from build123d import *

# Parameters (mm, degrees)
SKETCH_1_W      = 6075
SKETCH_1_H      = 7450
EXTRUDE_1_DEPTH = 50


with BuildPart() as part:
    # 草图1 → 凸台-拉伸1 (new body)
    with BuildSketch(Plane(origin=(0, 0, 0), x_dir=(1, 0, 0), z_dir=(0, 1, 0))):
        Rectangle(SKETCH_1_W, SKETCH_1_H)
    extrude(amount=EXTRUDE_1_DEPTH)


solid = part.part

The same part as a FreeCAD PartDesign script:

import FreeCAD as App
import Part
import Sketcher

V = App.Vector


def add_polygon(sketch, points):
    """Adds a closed chain of lines whose ends are joined by coincident constraints."""
    first, n = sketch.GeometryCount, len(points)
    for a, b in zip(points, points[1:] + points[:1]):
        sketch.addGeometry(Part.LineSegment(App.Vector(*a, 0), App.Vector(*b, 0)), False)
    for i in range(n):
        sketch.addConstraint(Sketcher.Constraint("Coincident", first + i, 2, first + (i + 1) % n, 1))

doc = App.newDocument("Part")
body = doc.addObject("PartDesign::Body", "Body")

sketch1 = body.newObject("Sketcher::SketchObject", "Sketch")
sketch1.AttachmentSupport = (doc.getObject("XZ_Plane"), [""])
sketch1.MapMode = "FlatFace"
add_polygon(sketch1, [(-3038, -3725), (-3038, 3725), (3038, 3725), (3038, -3725)])
sketch1.addConstraint([
    Sketcher.Constraint("Vertical", 0),
    Sketcher.Constraint("Horizontal", 1),
    Sketcher.Constraint("Vertical", 2),
    Sketcher.Constraint("Horizontal", 3),
    Sketcher.Constraint("Symmetric", 0, 2, 2, 2, -1, 1),
    Sketcher.Constraint("DistanceX", 1, 1, 1, 2, 6075.0),
    Sketcher.Constraint("DistanceY", 0, 1, 0, 2, 7450.0),
])
pad1 = body.newObject("PartDesign::Pad", "Pad")
pad1.Profile = sketch1
pad1.Length = 50
pad1.Reversed = True

doc.recompute()
